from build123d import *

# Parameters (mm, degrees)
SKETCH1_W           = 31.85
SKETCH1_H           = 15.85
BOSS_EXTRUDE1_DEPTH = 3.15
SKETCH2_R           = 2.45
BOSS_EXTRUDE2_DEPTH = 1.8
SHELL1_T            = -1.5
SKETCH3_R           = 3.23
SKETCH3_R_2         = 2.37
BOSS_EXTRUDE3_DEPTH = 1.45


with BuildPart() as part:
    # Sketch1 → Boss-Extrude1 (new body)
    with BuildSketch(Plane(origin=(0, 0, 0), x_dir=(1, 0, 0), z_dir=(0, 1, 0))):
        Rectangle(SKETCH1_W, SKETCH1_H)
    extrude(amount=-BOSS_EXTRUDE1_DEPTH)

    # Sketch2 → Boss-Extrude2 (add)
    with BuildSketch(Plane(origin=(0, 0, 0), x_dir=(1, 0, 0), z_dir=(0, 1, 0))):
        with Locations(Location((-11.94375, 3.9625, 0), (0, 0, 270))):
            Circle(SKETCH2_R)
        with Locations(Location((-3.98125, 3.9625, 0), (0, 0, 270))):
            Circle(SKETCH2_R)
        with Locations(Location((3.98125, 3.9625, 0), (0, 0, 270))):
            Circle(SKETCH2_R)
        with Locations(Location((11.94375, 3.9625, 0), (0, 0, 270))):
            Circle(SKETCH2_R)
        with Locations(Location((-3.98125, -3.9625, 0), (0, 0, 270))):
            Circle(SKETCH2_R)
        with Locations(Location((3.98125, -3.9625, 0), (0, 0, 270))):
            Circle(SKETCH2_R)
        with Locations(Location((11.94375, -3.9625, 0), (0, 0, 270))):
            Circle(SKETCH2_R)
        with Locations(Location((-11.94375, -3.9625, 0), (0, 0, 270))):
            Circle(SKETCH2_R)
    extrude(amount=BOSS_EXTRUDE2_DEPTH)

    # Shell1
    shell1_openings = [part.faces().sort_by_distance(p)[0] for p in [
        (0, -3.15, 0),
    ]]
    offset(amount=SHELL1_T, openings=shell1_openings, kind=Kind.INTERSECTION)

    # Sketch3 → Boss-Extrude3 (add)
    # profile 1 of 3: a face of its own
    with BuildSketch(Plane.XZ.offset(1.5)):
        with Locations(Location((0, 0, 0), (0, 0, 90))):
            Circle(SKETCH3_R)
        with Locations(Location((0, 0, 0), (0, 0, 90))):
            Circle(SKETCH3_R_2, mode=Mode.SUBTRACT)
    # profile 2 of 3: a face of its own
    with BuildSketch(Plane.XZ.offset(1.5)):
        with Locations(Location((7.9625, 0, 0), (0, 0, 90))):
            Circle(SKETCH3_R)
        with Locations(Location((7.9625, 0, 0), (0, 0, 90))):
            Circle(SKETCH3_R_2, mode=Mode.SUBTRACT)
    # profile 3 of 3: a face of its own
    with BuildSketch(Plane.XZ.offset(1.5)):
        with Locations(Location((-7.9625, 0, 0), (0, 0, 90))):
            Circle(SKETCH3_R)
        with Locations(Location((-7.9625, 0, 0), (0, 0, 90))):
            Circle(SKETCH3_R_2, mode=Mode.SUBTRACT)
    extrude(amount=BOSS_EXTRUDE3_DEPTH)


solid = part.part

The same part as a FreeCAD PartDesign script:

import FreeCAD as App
import Part
import Sketcher
from FreeCAD import Vector


def faces_at(feature, points):
    """Names of the faces that lie closest to the given points."""
    faces = feature.Shape.Faces
    near = lambda p: min(range(len(faces)), key=lambda i: faces[i].distToShape(Part.Vertex(*p))[0])
    return sorted({f"Face{near(p) + 1}" for p in points})

doc = App.newDocument("Part")
body = doc.addObject("PartDesign::Body", "Body")

# Sketch on XZ plane
sketch1 = body.newObject("Sketcher::SketchObject", "Sketch")
sketch1.AttachmentSupport = (doc.getObject("XZ_Plane"), [""])
sketch1.MapMode = "FlatFace"
sketch1.addGeometry(Part.LineSegment(Vector(-15.925, -7.925, 0), Vector(-15.925, 7.925, 0)), False)
sketch1.addGeometry(Part.LineSegment(Vector(-15.925, 7.925, 0), Vector(15.925, 7.925, 0)), False)
sketch1.addGeometry(Part.LineSegment(Vector(15.925, 7.925, 0), Vector(15.925, -7.925, 0)), False)
sketch1.addGeometry(Part.LineSegment(Vector(15.925, -7.925, 0), Vector(-15.925, -7.925, 0)), False)
sketch1.addConstraint(Sketcher.Constraint("Coincident", 0, 2, 1, 1))
sketch1.addConstraint(Sketcher.Constraint("Coincident", 1, 2, 2, 1))
sketch1.addConstraint(Sketcher.Constraint("Coincident", 2, 2, 3, 1))
sketch1.addConstraint(Sketcher.Constraint("Coincident", 3, 2, 0, 1))
sketch1.addConstraint(Sketcher.Constraint("Vertical", 0))
sketch1.addConstraint(Sketcher.Constraint("Horizontal", 1))
sketch1.addConstraint(Sketcher.Constraint("Vertical", 2))
sketch1.addConstraint(Sketcher.Constraint("Horizontal", 3))
sketch1.addConstraint(Sketcher.Constraint("Symmetric", 0, 2, 2, 2, -1, 1))
sketch1.addConstraint(Sketcher.Constraint("DistanceX", 1, 1, 1, 2, 31.85))
sketch1.addConstraint(Sketcher.Constraint("DistanceY", 0, 1, 0, 2, 15.85))
pad1 = body.newObject("PartDesign::Pad", "Pad")
pad1.Profile = sketch1
pad1.Length = 3.15

# Sketch on XZ plane
sketch2 = body.newObject("Sketcher::SketchObject", "Sketch001")
sketch2.AttachmentSupport = (doc.getObject("XZ_Plane"), [""])
sketch2.MapMode = "FlatFace"
sketch2.addGeometry(Part.Circle(Vector(-11.94375, -3.9625, 0), Vector(0, 0, 1), 2.45), False)
sketch2.addGeometry(Part.Circle(Vector(-3.98125, -3.9625, 0), Vector(0, 0, 1), 2.45), False)
sketch2.addGeometry(Part.Circle(Vector(3.98125, -3.9625, 0), Vector(0, 0, 1), 2.45), False)
sketch2.addGeometry(Part.Circle(Vector(11.94375, -3.9625, 0), Vector(0, 0, 1), 2.45), False)
sketch2.addGeometry(Part.Circle(Vector(-3.98125, 3.9625, 0), Vector(0, 0, 1), 2.45), False)
sketch2.addGeometry(Part.Circle(Vector(3.98125, 3.9625, 0), Vector(0, 0, 1), 2.45), False)
sketch2.addGeometry(Part.Circle(Vector(11.94375, 3.9625, 0), Vector(0, 0, 1), 2.45), False)
sketch2.addGeometry(Part.Circle(Vector(-11.94375, 3.9625, 0), Vector(0, 0, 1), 2.45), False)
sketch2.addConstraint(Sketcher.Constraint("Equal", 0, 1))
sketch2.addConstraint(Sketcher.Constraint("Equal", 1, 2))
sketch2.addConstraint(Sketcher.Constraint("Equal", 2, 3))
sketch2.addConstraint(Sketcher.Constraint("Equal", 3, 4))
sketch2.addConstraint(Sketcher.Constraint("Equal", 4, 5))
sketch2.addConstraint(Sketcher.Constraint("Equal", 5, 6))
sketch2.addConstraint(Sketcher.Constraint("Equal", 6, 7))
sketch2.addConstraint(Sketcher.Constraint("Symmetric", 2, 3, 4, 3, -1, 1))
sketch2.addConstraint(Sketcher.Constraint("Symmetric", 1, 3, 5, 3, -1, 1))
sketch2.addConstraint(Sketcher.Constraint("Symmetric", 0, 3, 6, 3, -1, 1))
sketch2.addConstraint(Sketcher.Constraint("Symmetric", 3, 3, 7, 3, -1, 1))
sketch2.addConstraint(Sketcher.Constraint("Symmetric", 1, 3, 2, 3, -2))
sketch2.addConstraint(Sketcher.Constraint("Symmetric", 0, 3, 3, 3, -2))
sketch2.addConstraint(Sketcher.Constraint("Horizontal", 0, 3, 1, 3))
sketch2.addConstraint(Sketcher.Constraint("Diameter", 0, 4.9))
sketch2.addConstraint(Sketcher.Constraint("DistanceX", 0, 3, 2, 3, 15.925))
sketch2.addConstraint(Sketcher.Constraint("DistanceY", 1, 3, 4, 3, 7.925))
sketch2.addConstraint(Sketcher.Constraint("DistanceX", 0, 3, 1, 3, 7.9625))
pad2 = body.newObject("PartDesign::Pad", "Pad001")
pad2.Profile = sketch2
pad2.Length = 1.8
pad2.Reversed = True
doc.recompute()

thickness = body.newObject("PartDesign::Thickness", "Thickness")
thickness.Base = (pad2, faces_at(pad2, [(0, -3.15, 0)]))
thickness.Value = 1.5
thickness.Reversed = True
thickness.Join = "Intersection"

# Sketch on XZ plane
sketch3 = body.newObject("Sketcher::SketchObject", "Sketch002")
sketch3.AttachmentSupport = (doc.getObject("XZ_Plane"), [""])
sketch3.MapMode = "FlatFace"
sketch3.AttachmentOffset = App.Placement(Vector(0, 0, 1.5), App.Rotation())
sketch3.addGeometry(Part.Circle(Vector(0, 0, 0), Vector(0, 0, 1), 3.23), False)
sketch3.addGeometry(Part.Circle(Vector(0, 0, 0), Vector(0, 0, 1), 2.37), False)
sketch3.addGeometry(Part.Circle(Vector(7.9625, 0, 0), Vector(0, 0, 1), 3.23), False)
sketch3.addGeometry(Part.Circle(Vector(7.9625, 0, 0), Vector(0, 0, 1), 2.37), False)
sketch3.addGeometry(Part.Circle(Vector(-7.9625, 0, 0), Vector(0, 0, 1), 3.23), False)
sketch3.addGeometry(Part.Circle(Vector(-7.9625, 0, 0), Vector(0, 0, 1), 2.37), False)
sketch3.addConstraint(Sketcher.Constraint("Coincident", 0, 3, -1, 1))
sketch3.addConstraint(Sketcher.Constraint("Coincident", 1, 3, -1, 1))
sketch3.addConstraint(Sketcher.Constraint("Coincident", 3, 3, 2, 3))
sketch3.addConstraint(Sketcher.Constraint("Coincident", 5, 3, 4, 3))
sketch3.addConstraint(Sketcher.Constraint("Equal", 0, 2))
sketch3.addConstraint(Sketcher.Constraint("Equal", 1, 3))
sketch3.addConstraint(Sketcher.Constraint("Equal", 2, 4))
sketch3.addConstraint(Sketcher.Constraint("Equal", 3, 5))
sketch3.addConstraint(Sketcher.Constraint("Symmetric", 2, 3, 4, 3, -1, 1))
sketch3.addConstraint(Sketcher.Constraint("PointOnObject", 2, 3, -1))
sketch3.addConstraint(Sketcher.Constraint("Diameter", 0, 6.46))
sketch3.addConstraint(Sketcher.Constraint("Diameter", 1, 4.74))
sketch3.addConstraint(Sketcher.Constraint("DistanceX", 4, 3, 2, 3, 15.925))
pad3 = body.newObject("PartDesign::Pad", "Pad002")
pad3.Profile = sketch3
pad3.Length = 1.45

doc.recompute()
